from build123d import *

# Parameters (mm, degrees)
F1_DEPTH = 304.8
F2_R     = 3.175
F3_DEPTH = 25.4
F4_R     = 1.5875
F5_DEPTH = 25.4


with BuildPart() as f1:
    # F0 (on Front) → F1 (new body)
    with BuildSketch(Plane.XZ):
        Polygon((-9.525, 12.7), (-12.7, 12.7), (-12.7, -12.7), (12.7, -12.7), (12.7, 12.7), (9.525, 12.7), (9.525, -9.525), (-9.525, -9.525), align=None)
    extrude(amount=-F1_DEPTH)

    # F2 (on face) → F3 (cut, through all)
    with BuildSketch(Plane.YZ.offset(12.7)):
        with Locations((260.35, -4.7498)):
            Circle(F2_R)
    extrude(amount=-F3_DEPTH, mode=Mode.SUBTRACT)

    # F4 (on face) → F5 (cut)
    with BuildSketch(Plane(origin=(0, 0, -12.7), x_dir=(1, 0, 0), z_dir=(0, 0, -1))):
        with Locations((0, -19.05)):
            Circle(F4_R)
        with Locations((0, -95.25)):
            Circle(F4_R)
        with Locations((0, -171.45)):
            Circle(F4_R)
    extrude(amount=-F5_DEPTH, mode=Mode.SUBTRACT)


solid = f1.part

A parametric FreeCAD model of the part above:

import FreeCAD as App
import Part
import Sketcher
Q = App.Units.Quantity


def add_polygon(sketch, points):
    """Adds a closed chain of lines whose ends are joined by coincident constraints."""
    first, n = sketch.GeometryCount, len(points)
    for a, b in zip(points, points[1:] + points[:1]):
        sketch.addGeometry(Part.LineSegment(App.Vector(*a, 0), App.Vector(*b, 0)), False)
    for i in range(n):
        sketch.addConstraint(Sketcher.Constraint("Coincident", first + i, 2, first + (i + 1) % n, 1))

doc = App.newDocument("Part")
params = doc.addObject("Spreadsheet::Sheet", "Params")
for row, (alias, value) in enumerate([
    ("sketch1_width", "1 in"),
    ("sketch1_width2", "0.75 in"),
    ("sketch1_height", "0.875 in"),
    ("pad1_length", "12 in"),
    ("sketch2_diameter", "0.25 in"),
    ("sketch3_diameter", "0.125 in"),
    ("pocket2_length", "1 in"),
], start=1):
    params.set(f"A{row}", alias)
    params.set(f"B{row}", "=" + value)
    params.setAlias(f"B{row}", alias)

body = doc.addObject("PartDesign::Body", "Body")

# Sketch on XZ plane
sketch1 = body.newObject("Sketcher::SketchObject", "Sketch")
sketch1.AttachmentSupport = (doc.getObject("XZ_Plane"), [""])
sketch1.MapMode = "FlatFace"
add_polygon(sketch1, [(-9.5, 12.7), (-12.7, 12.7), (-12.7, -12.7), (12.7, -12.7), (12.7, 12.7), (9.5, 12.7), (9.5, -9.5), (-9.5, -9.5)])  # lines 0-7
sketch1.addConstraint([
    Sketcher.Constraint("Horizontal", 0),
    Sketcher.Constraint("Vertical", 1),
    Sketcher.Constraint("Horizontal", 2),
    Sketcher.Constraint("Vertical", 3),
    Sketcher.Constraint("Horizontal", 4),
    Sketcher.Constraint("Vertical", 5),
    Sketcher.Constraint("Horizontal", 6),
    Sketcher.Constraint("Vertical", 7),
    Sketcher.Constraint("Symmetric", 0, 2, 2, 2, -1, 1),
    Sketcher.Constraint("Symmetric", 4, 2, 7, 2, -2),
    Sketcher.Constraint("Equal", 2, 1),
    Sketcher.Constraint("DistanceX", 2, 1, 2, 2, Q("1 in")),
    Sketcher.Constraint("DistanceX", 6, 2, 6, 1, Q("0.75 in")),
    Sketcher.Constraint("DistanceY", 5, 2, 5, 1, Q("0.875 in")),
])
sketch1.setExpression("Constraints[19]", "Params.sketch1_width")
sketch1.setExpression("Constraints[20]", "Params.sketch1_width2")
sketch1.setExpression("Constraints[21]", "Params.sketch1_height")
pad1 = body.newObject("PartDesign::Pad", "Pad")
pad1.Profile = sketch1
pad1.setExpression("Length", "Params.pad1_length")
pad1.Reversed = True

# Sketch on YZ plane
sketch2 = body.newObject("Sketcher::SketchObject", "Sketch001")
sketch2.AttachmentSupport = (doc.getObject("YZ_Plane"), [""])
sketch2.MapMode = "FlatFace"
sketch2.AttachmentOffset = App.Placement(App.Vector(0, 0, 0.5 * 25.4), App.Rotation())
sketch2.addGeometry(Part.Circle(App.Vector(260.4, -4.7, 0), App.Vector(0, 0, 1), 3.2), False)
sketch2.addConstraint([
    Sketcher.Constraint("Diameter", 0, Q("0.25 in")),
    Sketcher.Constraint("DistanceX", -1, 1, 0, 3, Q("10.25 in")),
    Sketcher.Constraint("DistanceY", 0, 3, -1, 1, Q("0.187 in")),
])
sketch2.setExpression("Constraints[0]", "Params.sketch2_diameter")
pocket1 = body.newObject("PartDesign::Pocket", "Pocket")
pocket1.Profile = sketch2
pocket1.Type = "ThroughAll"

# Sketch on XY plane
sketch3 = body.newObject("Sketcher::SketchObject", "Sketch002")
sketch3.AttachmentSupport = (doc.getObject("XY_Plane"), [""])
sketch3.MapMode = "FlatFace"
sketch3.AttachmentOffset = App.Placement(App.Vector(0, 0, -0.5 * 25.4), App.Rotation())
sketch3.addGeometry([
    Part.Circle(App.Vector(0, 19.1, 0), App.Vector(0, 0, 1), 1.6),
    Part.Circle(App.Vector(0, 95.2, 0), App.Vector(0, 0, 1), 1.6),
    Part.Circle(App.Vector(0, 171.4, 0), App.Vector(0, 0, 1), 1.6),
], False)
sketch3.addConstraint([
    Sketcher.Constraint("Equal", 0, 1),
    Sketcher.Constraint("Equal", 1, 2),
    Sketcher.Constraint("PointOnObject", 0, 3, -2),
    Sketcher.Constraint("PointOnObject", 1, 3, -2),
    Sketcher.Constraint("PointOnObject", 2, 3, -2),
    Sketcher.Constraint("Diameter", 0, Q("0.125 in")),
    Sketcher.Constraint("DistanceY", 0, 3, 1, 3, Q("3 in")),
    Sketcher.Constraint("DistanceY", 1, 3, 2, 3, Q("3 in")),
    Sketcher.Constraint("DistanceY", -1, 1, 0, 3, Q("0.75 in")),
])
sketch3.setExpression("Constraints[5]", "Params.sketch3_diameter")
pocket2 = body.newObject("PartDesign::Pocket", "Pocket001")
pocket2.Profile = sketch3
pocket2.setExpression("Length", "Params.pocket2_length")
pocket2.Reversed = True

doc.recompute()
